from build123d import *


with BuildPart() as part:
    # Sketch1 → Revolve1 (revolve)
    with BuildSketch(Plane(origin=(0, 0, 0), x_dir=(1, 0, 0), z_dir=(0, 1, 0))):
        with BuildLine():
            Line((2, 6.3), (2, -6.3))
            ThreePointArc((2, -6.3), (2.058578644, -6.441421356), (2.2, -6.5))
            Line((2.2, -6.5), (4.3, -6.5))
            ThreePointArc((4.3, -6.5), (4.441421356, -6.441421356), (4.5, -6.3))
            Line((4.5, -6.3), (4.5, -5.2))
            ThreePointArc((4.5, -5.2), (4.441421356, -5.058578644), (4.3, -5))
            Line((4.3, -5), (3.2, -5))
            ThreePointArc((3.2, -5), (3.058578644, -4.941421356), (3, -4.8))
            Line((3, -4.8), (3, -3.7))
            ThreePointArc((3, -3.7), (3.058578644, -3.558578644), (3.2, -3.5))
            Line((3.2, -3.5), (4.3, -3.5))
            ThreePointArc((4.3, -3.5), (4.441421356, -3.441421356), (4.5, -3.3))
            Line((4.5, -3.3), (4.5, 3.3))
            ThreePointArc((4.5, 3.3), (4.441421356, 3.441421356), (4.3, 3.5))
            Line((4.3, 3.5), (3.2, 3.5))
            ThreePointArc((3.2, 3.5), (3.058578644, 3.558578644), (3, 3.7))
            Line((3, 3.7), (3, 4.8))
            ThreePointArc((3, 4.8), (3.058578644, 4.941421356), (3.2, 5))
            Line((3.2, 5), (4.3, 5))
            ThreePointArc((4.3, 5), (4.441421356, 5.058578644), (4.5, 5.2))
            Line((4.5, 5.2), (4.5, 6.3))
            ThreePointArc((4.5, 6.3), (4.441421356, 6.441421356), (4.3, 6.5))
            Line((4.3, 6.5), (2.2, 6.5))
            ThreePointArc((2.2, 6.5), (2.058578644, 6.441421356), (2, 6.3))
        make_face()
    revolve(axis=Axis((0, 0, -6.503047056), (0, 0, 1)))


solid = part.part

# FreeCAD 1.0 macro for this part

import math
import FreeCAD as App
import Part
import Sketcher
Q = App.Units.Quantity

doc = App.newDocument("Part")
body = doc.addObject("PartDesign::Body", "Body")

sketch1 = body.newObject("Sketcher::SketchObject", "Sketch")
sketch1.AttachmentSupport = (doc.getObject("XZ_Plane"), [""])
sketch1.MapMode = "FlatFace"
sketch1.addGeometry(Part.LineSegment(App.Vector(2, -6.3, 0), App.Vector(2, 6.3, 0)), False)
sketch1.addGeometry(Part.ArcOfCircle(Part.Circle(App.Vector(2.2, 6.3, 0), App.Vector(0, 0, 1), 0.2), math.radians(90), math.radians(180)), False)
sketch1.addGeometry(Part.LineSegment(App.Vector(2.2, 6.5, 0), App.Vector(4.3, 6.5, 0)), False)
sketch1.addGeometry(Part.ArcOfCircle(Part.Circle(App.Vector(4.3, 6.3, 0), App.Vector(0, 0, 1), 0.2), math.radians(0), math.radians(90)), False)
sketch1.addGeometry(Part.LineSegment(App.Vector(4.5, 6.3, 0), App.Vector(4.5, 5.2, 0)), False)
sketch1.addGeometry(Part.ArcOfCircle(Part.Circle(App.Vector(4.3, 5.2, 0), App.Vector(0, 0, 1), 0.2), math.radians(-90), math.radians(0)), False)
sketch1.addGeometry(Part.LineSegment(App.Vector(4.3, 5, 0), App.Vector(3.2, 5, 0)), False)
sketch1.addGeometry(Part.ArcOfCircle(Part.Circle(App.Vector(3.2, 4.8, 0), App.Vector(0, 0, 1), 0.2), math.radians(90), math.radians(180)), False)
sketch1.addGeometry(Part.LineSegment(App.Vector(3, 4.8, 0), App.Vector(3, 3.7, 0)), False)
sketch1.addGeometry(Part.ArcOfCircle(Part.Circle(App.Vector(3.2, 3.7, 0), App.Vector(0, 0, 1), 0.2), math.radians(-180), math.radians(-90)), False)
sketch1.addGeometry(Part.LineSegment(App.Vector(3.2, 3.5, 0), App.Vector(4.3, 3.5, 0)), False)
sketch1.addGeometry(Part.ArcOfCircle(Part.Circle(App.Vector(4.3, 3.3, 0), App.Vector(0, 0, 1), 0.2), math.radians(0), math.radians(90)), False)
sketch1.addGeometry(Part.LineSegment(App.Vector(4.5, 3.3, 0), App.Vector(4.5, -3.3, 0)), False)
sketch1.addGeometry(Part.ArcOfCircle(Part.Circle(App.Vector(4.3, -3.3, 0), App.Vector(0, 0, 1), 0.2), math.radians(-90), math.radians(0)), False)
sketch1.addGeometry(Part.LineSegment(App.Vector(4.3, -3.5, 0), App.Vector(3.2, -3.5, 0)), False)
sketch1.addGeometry(Part.ArcOfCircle(Part.Circle(App.Vector(3.2, -3.7, 0), App.Vector(0, 0, 1), 0.2), math.radians(90), math.radians(180)), False)
sketch1.addGeometry(Part.LineSegment(App.Vector(3, -3.7, 0), App.Vector(3, -4.8, 0)), False)
sketch1.addGeometry(Part.ArcOfCircle(Part.Circle(App.Vector(3.2, -4.8, 0), App.Vector(0, 0, 1), 0.2), math.radians(-180), math.radians(-90)), False)
sketch1.addGeometry(Part.LineSegment(App.Vector(3.2, -5, 0), App.Vector(4.3, -5, 0)), False)
sketch1.addGeometry(Part.ArcOfCircle(Part.Circle(App.Vector(4.3, -5.2, 0), App.Vector(0, 0, 1), 0.2), math.radians(0), math.radians(90)), False)
sketch1.addGeometry(Part.LineSegment(App.Vector(4.5, -5.2, 0), App.Vector(4.5, -6.3, 0)), False)
sketch1.addGeometry(Part.ArcOfCircle(Part.Circle(App.Vector(4.3, -6.3, 0), App.Vector(0, 0, 1), 0.2), math.radians(-90), math.radians(0)), False)
sketch1.addGeometry(Part.LineSegment(App.Vector(4.3, -6.5, 0), App.Vector(2.2, -6.5, 0)), False)
sketch1.addGeometry(Part.ArcOfCircle(Part.Circle(App.Vector(2.2, -6.3, 0), App.Vector(0, 0, 1), 0.2), math.radians(-180), math.radians(-90)), False)
sketch1.addConstraint(Sketcher.Constraint("Tangent", 0, 2, 1, 2))
sketch1.addConstraint(Sketcher.Constraint("Tangent", 1, 1, 2, 1))
sketch1.addConstraint(Sketcher.Constraint("Tangent", 2, 2, 3, 2))
sketch1.addConstraint(Sketcher.Constraint("Tangent", 3, 1, 4, 1))
sketch1.addConstraint(Sketcher.Constraint("Tangent", 4, 2, 5, 2))
sketch1.addConstraint(Sketcher.Constraint("Tangent", 5, 1, 6, 1))
sketch1.addConstraint(Sketcher.Constraint("Tangent", 6, 2, 7, 1))
sketch1.addConstraint(Sketcher.Constraint("Tangent", 7, 2, 8, 1))
sketch1.addConstraint(Sketcher.Constraint("Tangent", 8, 2, 9, 1))
sketch1.addConstraint(Sketcher.Constraint("Tangent", 9, 2, 10, 1))
sketch1.addConstraint(Sketcher.Constraint("Tangent", 10, 2, 11, 2))
sketch1.addConstraint(Sketcher.Constraint("Tangent", 11, 1, 12, 1))
sketch1.addConstraint(Sketcher.Constraint("Tangent", 12, 2, 13, 2))
sketch1.addConstraint(Sketcher.Constraint("Tangent", 13, 1, 14, 1))
sketch1.addConstraint(Sketcher.Constraint("Tangent", 14, 2, 15, 1))
sketch1.addConstraint(Sketcher.Constraint("Tangent", 15, 2, 16, 1))
sketch1.addConstraint(Sketcher.Constraint("Tangent", 16, 2, 17, 1))
sketch1.addConstraint(Sketcher.Constraint("Tangent", 17, 2, 18, 1))
sketch1.addConstraint(Sketcher.Constraint("Tangent", 18, 2, 19, 2))
sketch1.addConstraint(Sketcher.Constraint("Tangent", 19, 1, 20, 1))
sketch1.addConstraint(Sketcher.Constraint("Tangent", 20, 2, 21, 2))
sketch1.addConstraint(Sketcher.Constraint("Tangent", 21, 1, 22, 1))
sketch1.addConstraint(Sketcher.Constraint("Tangent", 22, 2, 23, 2))
sketch1.addConstraint(Sketcher.Constraint("Tangent", 23, 1, 0, 1))
sketch1.addConstraint(Sketcher.Constraint("Vertical", 0))
sketch1.addConstraint(Sketcher.Constraint("Horizontal", 2))
sketch1.addConstraint(Sketcher.Constraint("Vertical", 4))
sketch1.addConstraint(Sketcher.Constraint("Horizontal", 6))
sketch1.addConstraint(Sketcher.Constraint("Vertical", 8))
sketch1.addConstraint(Sketcher.Constraint("Horizontal", 10))
sketch1.addConstraint(Sketcher.Constraint("Vertical", 12))
sketch1.addConstraint(Sketcher.Constraint("Horizontal", 14))
sketch1.addConstraint(Sketcher.Constraint("Vertical", 16))
sketch1.addConstraint(Sketcher.Constraint("Horizontal", 18))
sketch1.addConstraint(Sketcher.Constraint("Vertical", 20))
sketch1.addConstraint(Sketcher.Constraint("Horizontal", 22))
sketch1.addConstraint(Sketcher.Constraint("Equal", 1, 3))
sketch1.addConstraint(Sketcher.Constraint("Equal", 3, 5))
sketch1.addConstraint(Sketcher.Constraint("Equal", 5, 7))
sketch1.addConstraint(Sketcher.Constraint("Equal", 7, 9))
sketch1.addConstraint(Sketcher.Constraint("Equal", 9, 11))
sketch1.addConstraint(Sketcher.Constraint("Equal", 11, 13))
sketch1.addConstraint(Sketcher.Constraint("Equal", 13, 15))
sketch1.addConstraint(Sketcher.Constraint("Equal", 15, 17))
sketch1.addConstraint(Sketcher.Constraint("Equal", 17, 19))
sketch1.addConstraint(Sketcher.Constraint("Equal", 19, 21))
sketch1.addConstraint(Sketcher.Constraint("Equal", 21, 23))
sketch1.addConstraint(Sketcher.Constraint("Symmetric", 9, 3, 15, 3, -1))
sketch1.addConstraint(Sketcher.Constraint("Symmetric", 5, 3, 19, 3, -1))
sketch1.addConstraint(Sketcher.Constraint("Vertical", 5, 3, 11, 3))
sketch1.addConstraint(Sketcher.Constraint("Equal", 18, 4))
sketch1.addConstraint(Sketcher.Constraint("Equal", 4, 8))
sketch1.addConstraint(Sketcher.Constraint("Equal", 16, 20))
sketch1.addConstraint(Sketcher.Constraint("Radius", 1, Q("0.2 mm")))
sketch1.addConstraint(Sketcher.Constraint("DistanceX", 2, 1, 2, 2, Q("2.1 mm")))
sketch1.addConstraint(Sketcher.Constraint("DistanceX", 6, 2, 6, 1, Q("1.1 mm")))
sketch1.addConstraint(Sketcher.Constraint("DistanceY", 0, 1, 0, 2, Q("12.6 mm")))
sketch1.addConstraint(Sketcher.Constraint("DistanceX", -1, 1, 0, 2, Q("2 mm")))
revolution = body.newObject("PartDesign::Revolution", "Revolution")
revolution.Profile = sketch1
revolution.ReferenceAxis = (sketch1, ["V_Axis"])
revolution.Angle = 360

doc.recompute()
